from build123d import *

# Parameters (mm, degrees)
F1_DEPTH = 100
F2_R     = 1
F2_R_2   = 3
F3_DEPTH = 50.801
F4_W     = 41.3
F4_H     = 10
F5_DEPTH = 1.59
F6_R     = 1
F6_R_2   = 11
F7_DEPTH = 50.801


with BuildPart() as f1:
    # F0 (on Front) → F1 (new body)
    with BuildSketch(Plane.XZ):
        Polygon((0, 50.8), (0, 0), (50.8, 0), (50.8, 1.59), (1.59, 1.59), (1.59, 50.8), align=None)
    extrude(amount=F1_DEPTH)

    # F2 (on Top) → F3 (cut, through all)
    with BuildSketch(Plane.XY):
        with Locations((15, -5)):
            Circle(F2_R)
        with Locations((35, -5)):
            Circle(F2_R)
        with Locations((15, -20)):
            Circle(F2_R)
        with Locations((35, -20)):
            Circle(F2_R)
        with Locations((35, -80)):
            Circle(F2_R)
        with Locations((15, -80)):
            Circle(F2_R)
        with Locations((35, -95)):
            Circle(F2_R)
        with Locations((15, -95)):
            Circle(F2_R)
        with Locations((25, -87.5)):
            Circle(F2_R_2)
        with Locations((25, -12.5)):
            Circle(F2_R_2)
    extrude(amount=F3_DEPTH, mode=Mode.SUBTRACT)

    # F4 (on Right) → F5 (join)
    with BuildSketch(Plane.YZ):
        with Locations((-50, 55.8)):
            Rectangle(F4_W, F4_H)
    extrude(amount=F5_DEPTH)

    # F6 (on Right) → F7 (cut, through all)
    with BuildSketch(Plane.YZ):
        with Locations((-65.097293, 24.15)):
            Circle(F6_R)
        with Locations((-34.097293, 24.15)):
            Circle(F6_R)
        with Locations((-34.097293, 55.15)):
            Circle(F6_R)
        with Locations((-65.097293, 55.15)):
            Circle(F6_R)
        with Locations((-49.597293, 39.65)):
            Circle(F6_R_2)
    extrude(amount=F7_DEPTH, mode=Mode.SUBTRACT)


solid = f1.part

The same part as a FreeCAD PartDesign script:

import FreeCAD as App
import Part
import Sketcher

V = App.Vector


def add_polygon(sketch, points):
    """Adds a closed chain of lines whose ends are joined by coincident constraints."""
    first, n = sketch.GeometryCount, len(points)
    for a, b in zip(points, points[1:] + points[:1]):
        sketch.addGeometry(Part.LineSegment(App.Vector(*a, 0), App.Vector(*b, 0)), False)
    for i in range(n):
        sketch.addConstraint(Sketcher.Constraint("Coincident", first + i, 2, first + (i + 1) % n, 1))

doc = App.newDocument("Part")
params = doc.addObject("Spreadsheet::Sheet", "Params")
for row, (alias, value) in enumerate([
    ("sketch1_width", "50.8 mm"),
    ("sketch1_width2", "49.21 mm"),
    ("pad1_length", "100 mm"),
    ("sketch2_diameter", "2 mm"),
    ("sketch2_diameter2", "6 mm"),
    ("sketch3_height", "10 mm"),
    ("sketch3_width", "41.3 mm"),
    ("pad2_length", "1.59 mm"),
    ("sketch4_diameter", "2 mm"),
    ("sketch4_diameter2", "22 mm"),
], start=1):
    params.set(f"A{row}", alias)
    params.set(f"B{row}", "=" + value)
    params.setAlias(f"B{row}", alias)

body = doc.addObject("PartDesign::Body", "Body")

sketch1 = body.newObject("Sketcher::SketchObject", "Sketch")
sketch1.AttachmentSupport = (doc.getObject("XZ_Plane"), [""])
sketch1.MapMode = "FlatFace"
add_polygon(sketch1, [(0, 50.8), (0, 0), (50.8, 0), (50.8, 1.59), (1.59, 1.59), (1.59, 50.8)])
sketch1.addConstraint([
    Sketcher.Constraint("Vertical", 0),
    Sketcher.Constraint("Horizontal", 1),
    Sketcher.Constraint("Vertical", 2),
    Sketcher.Constraint("Horizontal", 3),
    Sketcher.Constraint("Vertical", 4),
    Sketcher.Constraint("Horizontal", 5),
    Sketcher.Constraint("Coincident", 0, 2, -1, 1),
    Sketcher.Constraint("Equal", 1, 0),
    Sketcher.Constraint("Equal", 5, 2),
    Sketcher.Constraint("DistanceX", 1, 1, 1, 2, 50.8),
    Sketcher.Constraint("DistanceX", 3, 2, 3, 1, 49.21),
])
sketch1.setExpression("Constraints[15]", "Params.sketch1_width")
sketch1.setExpression("Constraints[16]", "Params.sketch1_width2")
pad1 = body.newObject("PartDesign::Pad", "Pad")
pad1.Profile = sketch1
pad1.setExpression("Length", "Params.pad1_length")

sketch2 = body.newObject("Sketcher::SketchObject", "Sketch001")
sketch2.AttachmentSupport = (doc.getObject("XY_Plane"), [""])
sketch2.MapMode = "FlatFace"
sketch2.addGeometry([
    Part.Circle(V(15, -5, 0), V(0, 0, 1), 1),
    Part.Circle(V(35, -5, 0), V(0, 0, 1), 1),
    Part.Circle(V(15, -20, 0), V(0, 0, 1), 1),
    Part.Circle(V(35, -20, 0), V(0, 0, 1), 1),
    Part.Circle(V(35, -80, 0), V(0, 0, 1), 1),
    Part.Circle(V(15, -80, 0), V(0, 0, 1), 1),
    Part.Circle(V(35, -95, 0), V(0, 0, 1), 1),
    Part.Circle(V(15, -95, 0), V(0, 0, 1), 1),
    Part.Circle(V(25, -87.5, 0), V(0, 0, 1), 3),
    Part.Circle(V(25, -12.5, 0), V(0, 0, 1), 3),
], False)
sketch2.addConstraint([
    Sketcher.Constraint("Equal", 0, 1),
    Sketcher.Constraint("Equal", 1, 2),
    Sketcher.Constraint("Equal", 2, 3),
    Sketcher.Constraint("Equal", 3, 4),
    Sketcher.Constraint("Equal", 4, 5),
    Sketcher.Constraint("Equal", 5, 6),
    Sketcher.Constraint("Equal", 6, 7),
    Sketcher.Constraint("Equal", 8, 9),
    Sketcher.Constraint("Horizontal", 0, 3, 1, 3),
    Sketcher.Constraint("Horizontal", 2, 3, 3, 3),
    Sketcher.Constraint("Horizontal", 4, 3, 5, 3),
    Sketcher.Constraint("Horizontal", 6, 3, 7, 3),
    Sketcher.Constraint("Vertical", 0, 3, 2, 3),
    Sketcher.Constraint("Vertical", 1, 3, 3, 3),
    Sketcher.Constraint("Vertical", 3, 3, 4, 3),
    Sketcher.Constraint("Vertical", 2, 3, 5, 3),
    Sketcher.Constraint("Vertical", 4, 3, 6, 3),
    Sketcher.Constraint("Vertical", 5, 3, 7, 3),
    Sketcher.Constraint("Vertical", 8, 3, 9, 3),
    Sketcher.Constraint("Diameter", 0, 2.0),
    Sketcher.Constraint("Diameter", 8, 6.0),
    Sketcher.Constraint("DistanceX", -1, 1, 0, 3, 15.0),
    Sketcher.Constraint("DistanceY", 0, 3, -1, 1, 5.0),
    Sketcher.Constraint("DistanceX", -1, 1, 1, 3, 35.0),
    Sketcher.Constraint("DistanceY", 2, 3, -1, 1, 20.0),
    Sketcher.Constraint("DistanceY", 4, 3, -1, 1, 80.0),
    Sketcher.Constraint("DistanceY", 6, 3, -1, 1, 95.0),
    Sketcher.Constraint("DistanceX", -1, 1, 8, 3, 25.0),
    Sketcher.Constraint("DistanceY", 8, 3, -1, 1, 87.5),
    Sketcher.Constraint("DistanceY", 9, 3, -1, 1, 12.5),
])
sketch2.setExpression("Constraints[19]", "Params.sketch2_diameter")
sketch2.setExpression("Constraints[20]", "Params.sketch2_diameter2")
pocket1 = body.newObject("PartDesign::Pocket", "Pocket")
pocket1.Profile = sketch2
pocket1.Type = "ThroughAll"
pocket1.Reversed = True

sketch3 = body.newObject("Sketcher::SketchObject", "Sketch002")
sketch3.AttachmentSupport = (doc.getObject("YZ_Plane"), [""])
sketch3.MapMode = "FlatFace"
add_polygon(sketch3, [(-70.65, 60.8), (-70.65, 50.8), (-29.35, 50.8), (-29.35, 60.8)])
sketch3.addConstraint([
    Sketcher.Constraint("Vertical", 0),
    Sketcher.Constraint("Horizontal", 1),
    Sketcher.Constraint("Vertical", 2),
    Sketcher.Constraint("Horizontal", 3),
    Sketcher.Constraint("DistanceY", 0, 2, 0, 1, 10.0),
    Sketcher.Constraint("DistanceX", 1, 1, 1, 2, 41.3),
    Sketcher.Constraint("DistanceY", -1, 1, 0, 2, 50.8),
    Sketcher.Constraint("DistanceX", 0, 2, -1, 1, 70.65),
])
sketch3.setExpression("Constraints[8]", "Params.sketch3_height")
sketch3.setExpression("Constraints[9]", "Params.sketch3_width")
pad2 = body.newObject("PartDesign::Pad", "Pad001")
pad2.Profile = sketch3
pad2.setExpression("Length", "Params.pad2_length")

sketch4 = body.newObject("Sketcher::SketchObject", "Sketch003")
sketch4.AttachmentSupport = (doc.getObject("YZ_Plane"), [""])
sketch4.MapMode = "FlatFace"
sketch4.addGeometry([
    Part.Circle(V(-65.097293, 24.15, 0), V(0, 0, 1), 1),
    Part.Circle(V(-34.097293, 24.15, 0), V(0, 0, 1), 1),
    Part.Circle(V(-34.097293, 55.15, 0), V(0, 0, 1), 1),
    Part.Circle(V(-65.097293, 55.15, 0), V(0, 0, 1), 1),
    Part.Circle(V(-49.597293, 39.65, 0), V(0, 0, 1), 11),
], False)
sketch4.addConstraint([
    Sketcher.Constraint("Equal", 0, 1),
    Sketcher.Constraint("Equal", 1, 2),
    Sketcher.Constraint("Equal", 2, 3),
    Sketcher.Constraint("Horizontal", 0, 3, 1, 3),
    Sketcher.Constraint("Horizontal", 2, 3, 3, 3),
    Sketcher.Constraint("Vertical", 1, 3, 2, 3),
    Sketcher.Constraint("Vertical", 0, 3, 3, 3),
    Sketcher.Constraint("Diameter", 0, 2.0),
    Sketcher.Constraint("Diameter", 4, 22.0),
    Sketcher.Constraint("DistanceX", 0, 3, 1, 3, 31.0),
    Sketcher.Constraint("DistanceY", 1, 3, 2, 3, 31.0),
    Sketcher.Constraint("DistanceX", 0, 3, 4, 3, 15.5),
    Sketcher.Constraint("DistanceY", 0, 3, 4, 3, 15.5),
    Sketcher.Constraint("DistanceY", -1, 1, 0, 3, 24.15),
    Sketcher.Constraint("DistanceX", 0, 3, -1, 1, 65.097293),
])
sketch4.setExpression("Constraints[7]", "Params.sketch4_diameter")
sketch4.setExpression("Constraints[8]", "Params.sketch4_diameter2")
pocket2 = body.newObject("PartDesign::Pocket", "Pocket001")
pocket2.Profile = sketch4
pocket2.Type = "ThroughAll"
pocket2.Reversed = True

doc.recompute()
